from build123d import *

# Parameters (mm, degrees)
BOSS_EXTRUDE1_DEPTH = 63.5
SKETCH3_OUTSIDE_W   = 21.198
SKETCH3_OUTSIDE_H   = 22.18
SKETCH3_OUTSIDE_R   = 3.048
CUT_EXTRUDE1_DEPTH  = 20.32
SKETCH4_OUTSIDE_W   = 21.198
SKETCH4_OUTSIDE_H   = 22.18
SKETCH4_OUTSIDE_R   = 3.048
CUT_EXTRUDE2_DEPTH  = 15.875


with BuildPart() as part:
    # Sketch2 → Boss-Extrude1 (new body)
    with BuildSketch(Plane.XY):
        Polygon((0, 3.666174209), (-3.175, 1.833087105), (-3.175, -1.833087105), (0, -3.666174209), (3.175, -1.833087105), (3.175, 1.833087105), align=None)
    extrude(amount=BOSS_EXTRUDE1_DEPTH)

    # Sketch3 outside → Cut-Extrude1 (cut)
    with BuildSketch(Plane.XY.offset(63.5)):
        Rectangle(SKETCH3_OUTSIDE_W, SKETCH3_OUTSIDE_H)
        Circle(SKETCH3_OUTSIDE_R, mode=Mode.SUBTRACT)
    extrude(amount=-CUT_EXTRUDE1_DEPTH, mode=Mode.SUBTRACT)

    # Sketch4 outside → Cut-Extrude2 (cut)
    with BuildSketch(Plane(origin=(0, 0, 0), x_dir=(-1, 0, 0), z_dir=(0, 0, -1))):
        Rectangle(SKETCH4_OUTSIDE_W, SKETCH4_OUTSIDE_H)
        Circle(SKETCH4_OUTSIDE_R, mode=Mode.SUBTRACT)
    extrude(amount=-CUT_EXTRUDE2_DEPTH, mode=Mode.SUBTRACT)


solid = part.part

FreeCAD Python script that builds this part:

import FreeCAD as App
import Part
import Sketcher
Q = App.Units.Quantity


def add_polygon(sketch, points):
    """Adds a closed chain of lines whose ends are joined by coincident constraints."""
    first, n = sketch.GeometryCount, len(points)
    for a, b in zip(points, points[1:] + points[:1]):
        sketch.addGeometry(Part.LineSegment(App.Vector(*a, 0), App.Vector(*b, 0)), False)
    for i in range(n):
        sketch.addConstraint(Sketcher.Constraint("Coincident", first + i, 2, first + (i + 1) % n, 1))

doc = App.newDocument("Part")
params = doc.addObject("Spreadsheet::Sheet", "Params")
for row, (alias, value) in enumerate([
    ("pad1_length", "2.5 in"),
    ("sketch2_diameter", "0.24 in"),
    ("pocket1_length", "0.8 in"),
    ("sketch3_diameter", "0.24 in"),
    ("pocket2_length", "0.625 in"),
], start=1):
    params.set(f"A{row}", alias)
    params.set(f"B{row}", "=" + value)
    params.setAlias(f"B{row}", alias)

body = doc.addObject("PartDesign::Body", "Body")

sketch1 = doc.addObject("Sketcher::SketchObject", "Sketch")
body.addObject(sketch1)
sketch1.AttachmentSupport = (doc.XY_Plane, [""])
sketch1.MapMode = "FlatFace"
add_polygon(sketch1, [(0, 3.7), (-3.2, 1.8), (-3.2, -1.8), (0, -3.7), (3.2, -1.8), (3.2, 1.8)])
sketch1.addConstraint([
    Sketcher.Constraint("Vertical", 1),
    Sketcher.Constraint("Vertical", 4),
    Sketcher.Constraint("Symmetric", 0, 2, 3, 2, -1, 1),
    Sketcher.Constraint("Symmetric", 2, 2, 5, 2, -1, 1),
    Sketcher.Constraint("PointOnObject", 2, 2, -2),
    Sketcher.Constraint("Parallel", 2, 5),
    Sketcher.Constraint("Horizontal", 1, 2, 3, 2),
    Sketcher.Constraint("Angle", 0, Q("-150 deg")),
    Sketcher.Constraint("DistanceX", 1, 2, 3, 2, Q("0.25 in")),
    Sketcher.Constraint("DistanceY", 1, 2, 1, 1, 3.666174),
])
pad1 = doc.addObject("PartDesign::Pad", "Pad")
body.addObject(pad1)
pad1.Profile = sketch1
pad1.setExpression("Length", "Params.pad1_length")

sketch2 = doc.addObject("Sketcher::SketchObject", "Sketch001")
body.addObject(sketch2)
sketch2.AttachmentSupport = (doc.XY_Plane, [""])
sketch2.MapMode = "FlatFace"
sketch2.AttachmentOffset = App.Placement(App.Vector(0, 0, 2.5 * 25.4), App.Rotation())
add_polygon(sketch2, [(-10.6, 11.1), (-10.6, -11.1), (10.6, -11.1), (10.6, 11.1)])
sketch2.addGeometry(Part.Circle(App.Vector(0, 0, 0), App.Vector(0, 0, 1), 3), False)
sketch2.addConstraint([
    Sketcher.Constraint("Vertical", 0),
    Sketcher.Constraint("Horizontal", 1),
    Sketcher.Constraint("Vertical", 2),
    Sketcher.Constraint("Horizontal", 3),
    Sketcher.Constraint("Coincident", 4, 3, -1, 1),
    Sketcher.Constraint("Symmetric", 0, 2, 2, 2, -1, 1),
    Sketcher.Constraint("Diameter", 4, Q("0.24 in")),
    Sketcher.Constraint("DistanceX", 1, 1, 1, 2, 21.198),
    Sketcher.Constraint("DistanceY", 0, 2, 0, 1, 22.18),
])
sketch2.setExpression("Constraints[10]", "Params.sketch2_diameter")
pocket1 = doc.addObject("PartDesign::Pocket", "Pocket")
body.addObject(pocket1)
pocket1.Profile = sketch2
pocket1.setExpression("Length", "Params.pocket1_length")

sketch3 = doc.addObject("Sketcher::SketchObject", "Sketch002")
body.addObject(sketch3)
sketch3.AttachmentSupport = (doc.XY_Plane, [""])
sketch3.MapMode = "FlatFace"
add_polygon(sketch3, [(10.6, 11.1), (10.6, -11.1), (-10.6, -11.1), (-10.6, 11.1)])
sketch3.addGeometry(Part.Circle(App.Vector(0, 0, 0), App.Vector(0, 0, 1), 3), False)
sketch3.addConstraint([
    Sketcher.Constraint("Vertical", 0),
    Sketcher.Constraint("Horizontal", 1),
    Sketcher.Constraint("Vertical", 2),
    Sketcher.Constraint("Horizontal", 3),
    Sketcher.Constraint("Coincident", 4, 3, -1, 1),
    Sketcher.Constraint("Symmetric", 0, 2, 2, 2, -1, 1),
    Sketcher.Constraint("Diameter", 4, Q("0.24 in")),
    Sketcher.Constraint("DistanceX", 1, 2, 1, 1, 21.198),
    Sketcher.Constraint("DistanceY", 0, 2, 0, 1, 22.18),
])
sketch3.setExpression("Constraints[10]", "Params.sketch3_diameter")
pocket2 = doc.addObject("PartDesign::Pocket", "Pocket001")
body.addObject(pocket2)
pocket2.Profile = sketch3
pocket2.setExpression("Length", "Params.pocket2_length")
pocket2.Reversed = True

doc.recompute()
